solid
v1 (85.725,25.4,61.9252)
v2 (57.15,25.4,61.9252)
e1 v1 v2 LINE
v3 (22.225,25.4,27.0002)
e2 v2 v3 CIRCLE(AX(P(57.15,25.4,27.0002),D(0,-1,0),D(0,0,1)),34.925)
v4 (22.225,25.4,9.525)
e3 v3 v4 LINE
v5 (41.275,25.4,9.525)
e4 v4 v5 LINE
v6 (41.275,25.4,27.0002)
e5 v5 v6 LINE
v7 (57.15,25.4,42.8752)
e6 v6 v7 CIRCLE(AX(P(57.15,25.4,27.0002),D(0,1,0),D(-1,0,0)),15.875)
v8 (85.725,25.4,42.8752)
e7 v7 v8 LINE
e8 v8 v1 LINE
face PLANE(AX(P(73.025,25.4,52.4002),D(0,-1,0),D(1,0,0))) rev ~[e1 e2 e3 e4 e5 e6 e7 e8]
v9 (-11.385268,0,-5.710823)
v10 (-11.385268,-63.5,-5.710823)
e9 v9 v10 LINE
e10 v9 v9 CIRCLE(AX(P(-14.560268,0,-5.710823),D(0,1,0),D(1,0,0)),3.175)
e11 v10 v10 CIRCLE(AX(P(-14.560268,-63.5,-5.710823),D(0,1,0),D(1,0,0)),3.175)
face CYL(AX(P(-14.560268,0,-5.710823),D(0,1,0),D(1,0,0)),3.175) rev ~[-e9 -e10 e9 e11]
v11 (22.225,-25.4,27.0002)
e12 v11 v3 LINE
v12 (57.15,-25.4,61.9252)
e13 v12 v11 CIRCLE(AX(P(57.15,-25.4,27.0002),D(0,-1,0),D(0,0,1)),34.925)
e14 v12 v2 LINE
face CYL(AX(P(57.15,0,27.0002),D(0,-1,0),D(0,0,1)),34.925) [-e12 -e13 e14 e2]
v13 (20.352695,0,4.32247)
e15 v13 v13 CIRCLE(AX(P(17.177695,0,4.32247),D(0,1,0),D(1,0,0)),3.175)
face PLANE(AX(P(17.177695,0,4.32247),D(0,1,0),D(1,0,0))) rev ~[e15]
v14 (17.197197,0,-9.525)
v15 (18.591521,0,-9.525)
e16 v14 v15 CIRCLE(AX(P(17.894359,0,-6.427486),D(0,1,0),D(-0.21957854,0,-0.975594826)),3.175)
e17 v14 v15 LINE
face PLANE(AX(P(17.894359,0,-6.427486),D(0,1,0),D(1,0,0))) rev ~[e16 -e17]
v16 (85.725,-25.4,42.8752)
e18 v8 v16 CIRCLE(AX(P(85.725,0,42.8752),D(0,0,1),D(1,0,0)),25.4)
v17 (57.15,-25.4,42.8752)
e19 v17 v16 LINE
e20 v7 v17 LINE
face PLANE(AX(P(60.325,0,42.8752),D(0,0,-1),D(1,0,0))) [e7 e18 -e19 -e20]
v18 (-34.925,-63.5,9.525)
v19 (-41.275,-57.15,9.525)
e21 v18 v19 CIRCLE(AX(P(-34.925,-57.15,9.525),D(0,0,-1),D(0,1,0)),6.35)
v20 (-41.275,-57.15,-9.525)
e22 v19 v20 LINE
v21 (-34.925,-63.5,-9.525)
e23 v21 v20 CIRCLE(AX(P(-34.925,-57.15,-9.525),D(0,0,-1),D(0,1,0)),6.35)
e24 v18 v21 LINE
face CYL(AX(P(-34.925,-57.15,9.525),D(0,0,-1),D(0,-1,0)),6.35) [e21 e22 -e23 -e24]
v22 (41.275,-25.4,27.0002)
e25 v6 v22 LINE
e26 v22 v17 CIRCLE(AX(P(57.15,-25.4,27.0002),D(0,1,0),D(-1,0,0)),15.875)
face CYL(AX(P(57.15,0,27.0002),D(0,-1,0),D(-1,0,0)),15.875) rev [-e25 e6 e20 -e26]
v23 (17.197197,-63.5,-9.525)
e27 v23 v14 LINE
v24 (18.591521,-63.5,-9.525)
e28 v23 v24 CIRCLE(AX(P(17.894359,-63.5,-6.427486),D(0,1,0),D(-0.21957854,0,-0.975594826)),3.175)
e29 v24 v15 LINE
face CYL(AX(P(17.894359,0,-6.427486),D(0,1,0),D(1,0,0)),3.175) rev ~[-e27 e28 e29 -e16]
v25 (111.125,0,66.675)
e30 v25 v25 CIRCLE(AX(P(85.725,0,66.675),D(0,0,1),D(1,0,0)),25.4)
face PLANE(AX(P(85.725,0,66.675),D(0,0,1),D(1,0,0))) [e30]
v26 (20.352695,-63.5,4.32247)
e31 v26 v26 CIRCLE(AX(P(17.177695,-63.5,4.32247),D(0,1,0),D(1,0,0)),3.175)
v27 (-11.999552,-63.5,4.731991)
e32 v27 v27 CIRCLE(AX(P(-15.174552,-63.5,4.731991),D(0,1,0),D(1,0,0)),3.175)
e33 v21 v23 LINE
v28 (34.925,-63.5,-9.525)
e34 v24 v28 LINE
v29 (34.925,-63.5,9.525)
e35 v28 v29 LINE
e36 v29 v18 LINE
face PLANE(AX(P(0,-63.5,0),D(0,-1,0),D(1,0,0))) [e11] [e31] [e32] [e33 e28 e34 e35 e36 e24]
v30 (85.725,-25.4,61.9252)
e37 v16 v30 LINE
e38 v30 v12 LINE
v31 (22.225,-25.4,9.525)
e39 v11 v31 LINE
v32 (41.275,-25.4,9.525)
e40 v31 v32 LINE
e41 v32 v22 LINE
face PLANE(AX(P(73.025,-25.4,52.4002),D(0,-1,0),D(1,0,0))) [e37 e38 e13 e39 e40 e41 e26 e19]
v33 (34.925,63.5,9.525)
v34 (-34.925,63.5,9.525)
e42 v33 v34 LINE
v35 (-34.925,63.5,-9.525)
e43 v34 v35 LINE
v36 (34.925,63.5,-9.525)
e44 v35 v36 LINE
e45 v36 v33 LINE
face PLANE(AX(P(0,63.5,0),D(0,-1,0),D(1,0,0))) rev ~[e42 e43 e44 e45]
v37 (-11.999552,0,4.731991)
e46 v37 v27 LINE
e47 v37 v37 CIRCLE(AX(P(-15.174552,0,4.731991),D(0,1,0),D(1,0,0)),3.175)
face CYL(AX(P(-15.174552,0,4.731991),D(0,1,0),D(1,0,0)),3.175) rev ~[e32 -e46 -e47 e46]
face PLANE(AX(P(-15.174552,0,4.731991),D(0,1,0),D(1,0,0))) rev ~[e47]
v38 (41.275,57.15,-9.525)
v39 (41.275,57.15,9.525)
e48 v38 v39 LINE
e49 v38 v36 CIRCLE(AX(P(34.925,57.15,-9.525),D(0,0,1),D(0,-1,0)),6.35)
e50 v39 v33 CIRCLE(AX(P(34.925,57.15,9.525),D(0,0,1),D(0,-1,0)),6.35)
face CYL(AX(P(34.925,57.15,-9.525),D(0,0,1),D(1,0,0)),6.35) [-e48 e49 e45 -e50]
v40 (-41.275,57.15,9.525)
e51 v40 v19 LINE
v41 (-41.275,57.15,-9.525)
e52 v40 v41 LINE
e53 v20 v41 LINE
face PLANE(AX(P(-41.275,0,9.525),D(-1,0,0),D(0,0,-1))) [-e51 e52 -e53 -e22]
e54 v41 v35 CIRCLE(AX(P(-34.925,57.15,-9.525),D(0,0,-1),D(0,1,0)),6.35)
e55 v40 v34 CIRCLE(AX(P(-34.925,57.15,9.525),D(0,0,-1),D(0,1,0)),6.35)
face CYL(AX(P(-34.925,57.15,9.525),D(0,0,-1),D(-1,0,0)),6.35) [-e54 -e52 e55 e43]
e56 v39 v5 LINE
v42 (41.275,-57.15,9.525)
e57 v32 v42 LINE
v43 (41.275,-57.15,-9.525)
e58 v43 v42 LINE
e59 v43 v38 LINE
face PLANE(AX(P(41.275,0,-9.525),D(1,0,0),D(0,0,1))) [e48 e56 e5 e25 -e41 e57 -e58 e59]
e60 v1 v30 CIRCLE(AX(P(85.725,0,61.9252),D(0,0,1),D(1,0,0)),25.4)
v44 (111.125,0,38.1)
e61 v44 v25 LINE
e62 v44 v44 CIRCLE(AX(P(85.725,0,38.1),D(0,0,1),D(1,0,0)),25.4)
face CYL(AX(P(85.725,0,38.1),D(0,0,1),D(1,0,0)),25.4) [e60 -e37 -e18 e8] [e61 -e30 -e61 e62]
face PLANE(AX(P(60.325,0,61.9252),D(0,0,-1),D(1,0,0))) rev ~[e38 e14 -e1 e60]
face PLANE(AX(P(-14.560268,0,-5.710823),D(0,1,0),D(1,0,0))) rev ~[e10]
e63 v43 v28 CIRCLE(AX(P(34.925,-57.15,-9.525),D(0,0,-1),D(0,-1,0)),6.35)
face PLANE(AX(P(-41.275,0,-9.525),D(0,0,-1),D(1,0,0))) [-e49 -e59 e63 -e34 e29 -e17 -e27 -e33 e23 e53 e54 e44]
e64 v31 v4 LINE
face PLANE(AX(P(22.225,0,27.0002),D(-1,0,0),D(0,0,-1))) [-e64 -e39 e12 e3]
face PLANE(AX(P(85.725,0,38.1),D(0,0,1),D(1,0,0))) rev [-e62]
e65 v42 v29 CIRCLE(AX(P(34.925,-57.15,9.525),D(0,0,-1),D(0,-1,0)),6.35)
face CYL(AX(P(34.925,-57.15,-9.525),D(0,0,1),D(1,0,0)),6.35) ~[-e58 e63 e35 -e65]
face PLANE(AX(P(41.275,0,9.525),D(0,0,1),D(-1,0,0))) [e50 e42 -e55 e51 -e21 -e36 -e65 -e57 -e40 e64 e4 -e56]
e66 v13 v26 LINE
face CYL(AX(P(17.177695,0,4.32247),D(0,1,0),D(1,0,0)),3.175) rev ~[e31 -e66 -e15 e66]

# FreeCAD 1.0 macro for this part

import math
import FreeCAD as App
import Part
import Sketcher
from FreeCAD import Vector
Q = App.Units.Quantity


def edges_at(feature, points):
    """Names of the edges that pass closest to the given points."""
    edges = feature.Shape.Edges
    near = lambda p: min(range(len(edges)), key=lambda i: edges[i].distToShape(Part.Vertex(*p))[0])
    return sorted({f"Edge{near(p) + 1}" for p in points})


def add_polygon(sketch, points):
    """Adds a closed chain of lines whose ends are joined by coincident constraints."""
    first, n = sketch.GeometryCount, len(points)
    for a, b in zip(points, points[1:] + points[:1]):
        sketch.addGeometry(Part.LineSegment(App.Vector(*a, 0), App.Vector(*b, 0)), False)
    for i in range(n):
        sketch.addConstraint(Sketcher.Constraint("Coincident", first + i, 2, first + (i + 1) % n, 1))

doc = App.newDocument("Part")
params = doc.addObject("Spreadsheet::Sheet", "Params")
for row, (alias, value) in enumerate([
    ("sketch1_width", "3.25 in"),
    ("sketch1_height", "0.75 in"),
    ("pad1_length", "5 in"),
    ("sketch2_radius", "0.625 in"),
    ("sketch2_radius2", "1.375 in"),
    ("sketch2_width", "0.125 in"),
    ("sketch2_height", "0.688 in"),
    ("pad2_length", "2 in"),
    ("sketch3_width", "1 in"),
    ("sketch3_height", "0.75 in"),
    ("pad3_length", "2 in"),
    ("sketch4_width", "1 in"),
    ("sketch4_height", "1.125 in"),
    ("revolution_angle", "360 deg"),
    ("fillet_radius", "0.25 in"),
    ("sketch5_diameter", "0.25 in"),
], start=1):
    params.set(f"A{row}", alias)
    params.set(f"B{row}", "=" + value)
    params.setAlias(f"B{row}", alias)

body = doc.addObject("PartDesign::Body", "Body")

# Sketch on XZ plane
sketch1 = body.newObject("Sketcher::SketchObject", "Sketch")
sketch1.AttachmentSupport = (doc.getObject("XZ_Plane"), [""])
sketch1.MapMode = "FlatFace"
add_polygon(sketch1, [(41, -10), (41, 10), (-41, 10), (-41, -10)])  # lines 0-3
sketch1.addConstraint([
    Sketcher.Constraint("Vertical", 0),
    Sketcher.Constraint("Horizontal", 1),
    Sketcher.Constraint("Vertical", 2),
    Sketcher.Constraint("Horizontal", 3),
    Sketcher.Constraint("Symmetric", 0, 2, 2, 2, -1, 1),
    Sketcher.Constraint("DistanceX", 1, 2, 1, 1, Q("3.25 in")),
    Sketcher.Constraint("DistanceY", 0, 1, 0, 2, Q("0.75 in")),
])
sketch1.setExpression("Constraints[9]", "Params.sketch1_width")
sketch1.setExpression("Constraints[10]", "Params.sketch1_height")
pad1 = body.newObject("PartDesign::Pad", "Pad")
pad1.Profile = sketch1
pad1.setExpression("Length", "Params.pad1_length")
pad1.Midplane = True

# Sketch on XZ plane
sketch2 = body.newObject("Sketcher::SketchObject", "Sketch001")
sketch2.AttachmentSupport = (doc.getObject("XZ_Plane"), [""])
sketch2.MapMode = "FlatFace"
sketch2.addGeometry([
    Part.LineSegment(Vector(22.2, 9.5, 0), Vector(41.3, 9.5, 0)),  # 0
    Part.LineSegment(Vector(41.3, 9.5, 0), Vector(41.3, 27, 0)),  # 1
    Part.ArcOfCircle(Part.Circle(Vector(57.1, 27, 0), Vector(0, 0, 1), 15.9), math.radians(90), math.radians(180)),  # 2
    Part.LineSegment(Vector(57.1, 42.9, 0), Vector(60.3, 42.9, 0)),  # 3
    Part.LineSegment(Vector(60.3, 42.9, 0), Vector(60.3, 61.9, 0)),  # 4
    Part.LineSegment(Vector(60.3, 61.9, 0), Vector(57.1, 61.9, 0)),  # 5
    Part.ArcOfCircle(Part.Circle(Vector(57.1, 27, 0), Vector(0, 0, 1), 34.9), math.radians(90), math.radians(180)),  # 6
    Part.LineSegment(Vector(22.2, 27, 0), Vector(22.2, 9.5, 0)),  # 7
], False)
sketch2.addConstraint([
    Sketcher.Constraint("Coincident", 0, 2, 1, 1),
    Sketcher.Constraint("Tangent", 1, 2, 2, 2),
    Sketcher.Constraint("Tangent", 2, 1, 3, 1),
    Sketcher.Constraint("Coincident", 3, 2, 4, 1),
    Sketcher.Constraint("Coincident", 4, 2, 5, 1),
    Sketcher.Constraint("Tangent", 5, 2, 6, 1),
    Sketcher.Constraint("Tangent", 6, 2, 7, 1),
    Sketcher.Constraint("Coincident", 7, 2, 0, 1),
    Sketcher.Constraint("Horizontal", 0),
    Sketcher.Constraint("Vertical", 1),
    Sketcher.Constraint("Horizontal", 3),
    Sketcher.Constraint("Vertical", 4),
    Sketcher.Constraint("Horizontal", 5),
    Sketcher.Constraint("Vertical", 7),
    Sketcher.Constraint("Coincident", 6, 3, 2, 3),
    Sketcher.Constraint("Radius", 2, Q("0.625 in")),
    Sketcher.Constraint("Radius", 6, Q("1.375 in")),
    Sketcher.Constraint("DistanceX", 3, 1, 3, 2, Q("0.125 in")),
    Sketcher.Constraint("DistanceY", 1, 1, 1, 2, Q("0.688 in")),
    Sketcher.Constraint("DistanceX", -1, 1, 2, 3, Q("2.25 in")),
    Sketcher.Constraint("DistanceY", -1, 1, 2, 3, Q("1.063 in")),
])
sketch2.setExpression("Constraints[15]", "Params.sketch2_radius")
sketch2.setExpression("Constraints[16]", "Params.sketch2_radius2")
sketch2.setExpression("Constraints[17]", "Params.sketch2_width")
sketch2.setExpression("Constraints[18]", "Params.sketch2_height")
pad2 = body.newObject("PartDesign::Pad", "Pad001")
pad2.Profile = sketch2
pad2.setExpression("Length", "Params.pad2_length")
pad2.Midplane = True

# Sketch on XZ plane
sketch3 = body.newObject("Sketcher::SketchObject", "Sketch002")
sketch3.AttachmentSupport = (doc.getObject("XZ_Plane"), [""])
sketch3.MapMode = "FlatFace"
add_polygon(sketch3, [(60, 62), (60, 43), (86, 43), (86, 62)])  # lines 0-3
sketch3.addConstraint([
    Sketcher.Constraint("Vertical", 0),
    Sketcher.Constraint("Horizontal", 1),
    Sketcher.Constraint("Vertical", 2),
    Sketcher.Constraint("Horizontal", 3),
    Sketcher.Constraint("DistanceX", 1, 1, 1, 2, Q("1 in")),
    Sketcher.Constraint("DistanceY", 0, 2, 0, 1, Q("0.75 in")),
    Sketcher.Constraint("DistanceX", -1, 1, 0, 2, Q("2.375 in")),
    Sketcher.Constraint("DistanceY", -1, 1, 0, 2, Q("1.688 in")),
])
sketch3.setExpression("Constraints[8]", "Params.sketch3_width")
sketch3.setExpression("Constraints[9]", "Params.sketch3_height")
pad3 = body.newObject("PartDesign::Pad", "Pad002")
pad3.Profile = sketch3
pad3.setExpression("Length", "Params.pad3_length")
pad3.Midplane = True

# Sketch on XZ plane
sketch4 = body.newObject("Sketcher::SketchObject", "Sketch003")
sketch4.AttachmentSupport = (doc.getObject("XZ_Plane"), [""])
sketch4.MapMode = "FlatFace"
add_polygon(sketch4, [(86, 38), (111, 38), (111, 67), (86, 67)])  # lines 0-3
sketch4.addGeometry(Part.LineSegment(Vector(86, 38, 0), Vector(86, 67, 0)), True)  # axis
sketch4.addConstraint([
    Sketcher.Constraint("Horizontal", 0),
    Sketcher.Constraint("Vertical", 1),
    Sketcher.Constraint("Horizontal", 2),
    Sketcher.Constraint("Vertical", 3),
    Sketcher.Constraint("Vertical", 4),
    Sketcher.Constraint("Coincident", 4, 1, 3, 2),
    Sketcher.Constraint("Horizontal", 1, 2, 4, 2),
    Sketcher.Constraint("DistanceX", 0, 1, 0, 2, Q("1 in")),
    Sketcher.Constraint("DistanceY", -1, 1, 0, 2, Q("1.5 in")),
    Sketcher.Constraint("DistanceY", 1, 1, 1, 2, Q("1.125 in")),
    Sketcher.Constraint("DistanceX", -1, 1, 0, 2, Q("4.375 in")),
])
sketch4.setExpression("Constraints[11]", "Params.sketch4_width")
sketch4.setExpression("Constraints[13]", "Params.sketch4_height")
revolution = body.newObject("PartDesign::Revolution", "Revolution")
revolution.Profile = sketch4
revolution.ReferenceAxis = (sketch4, ["Axis0"])
revolution.setExpression("Angle", "Params.revolution_angle")
doc.recompute()

fillet = body.newObject("PartDesign::Fillet", "Fillet")
fillet.Base = (revolution, edges_at(revolution, [
    (-41.275, -63.5, 0),
    (41.275, -63.5, 0),
    (41.275, 63.5, 0),
    (-41.275, 63.5, 0),
]))
fillet.setExpression("Radius", "Params.fillet_radius")

# Sketch on XZ plane
sketch5 = body.newObject("Sketcher::SketchObject", "Sketch004")
sketch5.AttachmentSupport = (doc.getObject("XZ_Plane"), [""])
sketch5.MapMode = "FlatFace"
sketch5.addGeometry([
    Part.Circle(Vector(17.9, -6.4, 0), Vector(0, 0, 1), 3.2),
    Part.Circle(Vector(17.2, 4.3, 0), Vector(0, 0, 1), 3.2),
    Part.Circle(Vector(-15.2, 4.7, 0), Vector(0, 0, 1), 3.2),
    Part.Circle(Vector(-14.6, -5.7, 0), Vector(0, 0, 1), 3.2),
], False)
sketch5.addConstraint([
    Sketcher.Constraint("Equal", 0, 1),
    Sketcher.Constraint("Equal", 1, 2),
    Sketcher.Constraint("Equal", 2, 3),
    Sketcher.Constraint("Diameter", 0, Q("0.25 in")),
    Sketcher.Constraint("DistanceX", -1, 1, 0, 3, Q("17.894359 mm")),
    Sketcher.Constraint("DistanceY", -1, 1, 1, 3, Q("4.32247 mm")),
    Sketcher.Constraint("DistanceX", 2, 3, -1, 1, Q("15.174552 mm")),
    Sketcher.Constraint("DistanceY", -1, 1, 2, 3, Q("4.731991 mm")),
    Sketcher.Constraint("DistanceX", 3, 3, -1, 1, Q("14.560268 mm")),
    Sketcher.Constraint("DistanceY", 0, 3, -1, 1, Q("6.427486 mm")),
    Sketcher.Constraint("DistanceX", -1, 1, 1, 3, Q("17.177695 mm")),
    Sketcher.Constraint("DistanceY", 3, 3, -1, 1, Q("5.710823 mm")),
])
sketch5.setExpression("Constraints[3]", "Params.sketch5_diameter")
pocket1 = body.newObject("PartDesign::Pocket", "Pocket")
pocket1.Profile = sketch5
pocket1.Type = "ThroughAll"
pocket1.Reversed = True

doc.recompute()
